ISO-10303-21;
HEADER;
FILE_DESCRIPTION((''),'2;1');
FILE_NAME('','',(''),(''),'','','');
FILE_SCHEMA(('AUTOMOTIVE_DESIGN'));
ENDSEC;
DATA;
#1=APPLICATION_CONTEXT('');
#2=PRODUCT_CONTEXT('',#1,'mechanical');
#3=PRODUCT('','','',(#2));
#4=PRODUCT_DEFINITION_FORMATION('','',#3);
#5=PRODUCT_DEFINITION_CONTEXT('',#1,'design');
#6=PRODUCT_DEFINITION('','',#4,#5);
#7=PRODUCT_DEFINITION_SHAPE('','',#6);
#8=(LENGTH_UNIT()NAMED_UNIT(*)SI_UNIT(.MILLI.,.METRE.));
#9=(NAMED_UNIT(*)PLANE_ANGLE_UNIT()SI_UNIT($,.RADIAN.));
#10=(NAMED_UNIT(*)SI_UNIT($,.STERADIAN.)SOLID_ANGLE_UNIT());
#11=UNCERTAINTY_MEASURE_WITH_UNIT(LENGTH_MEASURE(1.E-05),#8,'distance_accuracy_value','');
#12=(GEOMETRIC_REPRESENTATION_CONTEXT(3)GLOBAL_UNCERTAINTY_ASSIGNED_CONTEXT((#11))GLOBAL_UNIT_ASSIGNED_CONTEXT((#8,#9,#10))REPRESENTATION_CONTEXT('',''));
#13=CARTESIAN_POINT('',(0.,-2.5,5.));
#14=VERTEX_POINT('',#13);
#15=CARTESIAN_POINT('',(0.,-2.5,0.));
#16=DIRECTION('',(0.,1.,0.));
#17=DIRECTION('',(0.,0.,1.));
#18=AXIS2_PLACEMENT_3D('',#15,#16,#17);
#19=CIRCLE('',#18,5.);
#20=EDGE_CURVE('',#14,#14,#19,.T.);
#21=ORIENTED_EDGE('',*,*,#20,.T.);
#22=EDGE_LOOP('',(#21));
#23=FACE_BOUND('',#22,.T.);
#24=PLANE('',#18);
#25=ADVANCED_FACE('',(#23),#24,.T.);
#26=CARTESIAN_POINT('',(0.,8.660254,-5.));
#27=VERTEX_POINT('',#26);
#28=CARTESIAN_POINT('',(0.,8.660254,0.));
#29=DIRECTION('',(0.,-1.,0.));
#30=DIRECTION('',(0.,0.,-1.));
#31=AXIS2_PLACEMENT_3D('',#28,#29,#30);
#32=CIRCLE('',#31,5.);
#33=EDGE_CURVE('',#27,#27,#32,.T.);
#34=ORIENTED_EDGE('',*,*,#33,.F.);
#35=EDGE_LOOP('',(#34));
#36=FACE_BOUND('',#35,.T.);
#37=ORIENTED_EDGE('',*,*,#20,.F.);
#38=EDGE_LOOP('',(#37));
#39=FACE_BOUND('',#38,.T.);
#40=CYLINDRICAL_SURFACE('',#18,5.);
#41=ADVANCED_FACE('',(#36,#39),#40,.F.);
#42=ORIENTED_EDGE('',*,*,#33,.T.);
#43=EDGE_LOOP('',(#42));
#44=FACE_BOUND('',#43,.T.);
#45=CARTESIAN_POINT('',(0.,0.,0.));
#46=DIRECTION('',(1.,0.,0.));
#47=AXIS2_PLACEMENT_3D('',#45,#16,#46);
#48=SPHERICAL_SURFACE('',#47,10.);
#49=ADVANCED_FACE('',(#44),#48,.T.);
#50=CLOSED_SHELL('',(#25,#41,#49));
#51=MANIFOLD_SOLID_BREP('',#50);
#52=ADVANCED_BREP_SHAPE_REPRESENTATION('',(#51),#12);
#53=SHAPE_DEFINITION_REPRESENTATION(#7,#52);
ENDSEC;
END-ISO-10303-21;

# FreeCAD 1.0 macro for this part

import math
import FreeCAD as App
import Part
import Sketcher

V = App.Vector
Q = App.Units.Quantity

doc = App.newDocument("Part")
body = doc.addObject("PartDesign::Body", "Body")

sketch1 = body.newObject("Sketcher::SketchObject", "Sketch")
sketch1.AttachmentSupport = (doc.getObject("XY_Plane"), [""])
sketch1.MapMode = "FlatFace"
sketch1.addGeometry([
    Part.LineSegment(V(0, 10, 0), V(0, -10, 0)),
    Part.ArcOfCircle(Part.Circle(V(0, 0, 0), V(0, 0, 1), 10), math.radians(-90), math.radians(90)),
], False)
sketch1.addConstraint([
    Sketcher.Constraint("Coincident", 0, 1, 1, 2),
    Sketcher.Constraint("Coincident", 1, 1, 0, 2),
    Sketcher.Constraint("Vertical", 0),
    Sketcher.Constraint("Coincident", 1, 3, -1, 1),
    Sketcher.Constraint("PointOnObject", 0, 1, -2),
    Sketcher.Constraint("Radius", 1, Q("10 mm")),
])
revolution = body.newObject("PartDesign::Revolution", "Revolution")
revolution.Profile = sketch1
revolution.ReferenceAxis = (sketch1, ["V_Axis"])
revolution.Angle = 360

sketch2 = body.newObject("Sketcher::SketchObject", "Sketch001")
sketch2.AttachmentSupport = (doc.getObject("XZ_Plane"), [""])
sketch2.MapMode = "FlatFace"
sketch2.AttachmentOffset = App.Placement(V(0, 0, -10), App.Rotation())
sketch2.addGeometry(Part.Circle(V(0, 0, 0), V(0, 0, 1), 5), False)
sketch2.addConstraint([
    Sketcher.Constraint("Coincident", 0, 3, -1, 1),
    Sketcher.Constraint("Diameter", 0, Q("10 mm")),
])
pocket1 = body.newObject("PartDesign::Pocket", "Pocket")
pocket1.Profile = sketch2
pocket1.Length = 12.5
pocket1.Reversed = True

doc.recompute()
